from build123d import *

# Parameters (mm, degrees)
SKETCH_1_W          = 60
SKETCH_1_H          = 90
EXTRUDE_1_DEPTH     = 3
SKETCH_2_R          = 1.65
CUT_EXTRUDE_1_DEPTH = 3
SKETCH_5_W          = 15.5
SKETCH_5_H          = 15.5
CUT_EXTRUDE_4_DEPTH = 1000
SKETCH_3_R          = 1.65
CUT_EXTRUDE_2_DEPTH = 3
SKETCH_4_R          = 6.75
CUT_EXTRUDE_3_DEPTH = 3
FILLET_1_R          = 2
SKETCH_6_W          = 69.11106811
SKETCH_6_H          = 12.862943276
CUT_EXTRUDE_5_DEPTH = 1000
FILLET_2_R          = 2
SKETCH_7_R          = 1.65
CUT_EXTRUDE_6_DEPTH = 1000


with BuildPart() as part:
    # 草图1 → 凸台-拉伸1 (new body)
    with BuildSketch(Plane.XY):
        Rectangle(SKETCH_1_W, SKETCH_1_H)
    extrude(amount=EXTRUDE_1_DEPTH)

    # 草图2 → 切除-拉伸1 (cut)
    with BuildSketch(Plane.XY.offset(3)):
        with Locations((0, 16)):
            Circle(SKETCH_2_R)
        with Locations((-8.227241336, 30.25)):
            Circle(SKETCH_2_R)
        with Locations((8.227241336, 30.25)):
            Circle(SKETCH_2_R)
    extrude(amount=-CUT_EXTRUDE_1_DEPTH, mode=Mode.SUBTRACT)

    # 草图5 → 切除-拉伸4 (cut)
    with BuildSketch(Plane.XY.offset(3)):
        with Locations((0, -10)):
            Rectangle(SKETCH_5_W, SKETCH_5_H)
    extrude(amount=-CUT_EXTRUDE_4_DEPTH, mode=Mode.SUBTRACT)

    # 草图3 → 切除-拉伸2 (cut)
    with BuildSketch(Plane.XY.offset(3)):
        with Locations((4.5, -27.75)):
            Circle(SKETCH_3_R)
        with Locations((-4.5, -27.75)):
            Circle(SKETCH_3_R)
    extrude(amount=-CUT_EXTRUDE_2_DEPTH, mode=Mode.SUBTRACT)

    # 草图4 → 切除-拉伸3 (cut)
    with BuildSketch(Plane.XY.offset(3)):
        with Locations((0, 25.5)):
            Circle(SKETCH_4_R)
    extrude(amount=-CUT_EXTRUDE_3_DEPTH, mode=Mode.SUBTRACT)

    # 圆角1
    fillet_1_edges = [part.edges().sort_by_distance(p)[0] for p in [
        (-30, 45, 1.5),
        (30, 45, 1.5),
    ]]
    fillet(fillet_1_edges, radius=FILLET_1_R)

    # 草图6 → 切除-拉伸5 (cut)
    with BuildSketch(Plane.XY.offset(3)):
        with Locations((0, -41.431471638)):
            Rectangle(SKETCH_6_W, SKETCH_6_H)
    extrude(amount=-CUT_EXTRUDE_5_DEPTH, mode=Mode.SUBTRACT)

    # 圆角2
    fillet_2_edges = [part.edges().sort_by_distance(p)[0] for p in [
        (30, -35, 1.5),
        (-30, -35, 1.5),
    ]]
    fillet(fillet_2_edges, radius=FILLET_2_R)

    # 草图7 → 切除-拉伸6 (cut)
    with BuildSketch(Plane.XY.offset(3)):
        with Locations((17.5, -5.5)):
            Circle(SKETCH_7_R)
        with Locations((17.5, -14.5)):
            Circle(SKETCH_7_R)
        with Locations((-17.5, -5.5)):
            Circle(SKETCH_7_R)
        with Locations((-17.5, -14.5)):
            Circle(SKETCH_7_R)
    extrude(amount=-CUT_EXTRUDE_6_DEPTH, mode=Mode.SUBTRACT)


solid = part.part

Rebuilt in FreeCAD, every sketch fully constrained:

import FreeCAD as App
import Part
import Sketcher


def edges_at(feature, points):
    """Names of the edges that pass closest to the given points."""
    edges = feature.Shape.Edges
    near = lambda p: min(range(len(edges)), key=lambda i: edges[i].distToShape(Part.Vertex(*p))[0])
    return sorted({f"Edge{near(p) + 1}" for p in points})

doc = App.newDocument("Part")
params = doc.addObject("Spreadsheet::Sheet", "Params")
for row, (alias, value) in enumerate([
    ("sketch1_width", "60 mm"),
    ("sketch1_height", "90 mm"),
    ("pad1_length", "3 mm"),
    ("sketch2_diameter", "3.3 mm"),
    ("pocket1_length", "3 mm"),
    ("sketch3_width", "15.5 mm"),
    ("pocket2_length", "1000 mm"),
    ("sketch4_diameter", "3.3 mm"),
    ("pocket3_length", "3 mm"),
    ("sketch5_diameter", "13.5 mm"),
    ("pocket4_length", "3 mm"),
    ("fillet_radius", "2 mm"),
    ("pocket5_length", "1000 mm"),
    ("fillet2_radius", "2 mm"),
    ("sketch7_diameter", "3.3 mm"),
    ("pocket6_length", "1000 mm"),
], start=1):
    params.set(f"A{row}", alias)
    params.set(f"B{row}", "=" + value)
    params.setAlias(f"B{row}", alias)

body = doc.addObject("PartDesign::Body", "Body")

sketch1 = doc.addObject("Sketcher::SketchObject", "Sketch")
body.addObject(sketch1)
sketch1.AttachmentSupport = (doc.XY_Plane, [""])
sketch1.MapMode = "FlatFace"
sketch1.addGeometry(Part.LineSegment(App.Vector(-30, 45, 0), App.Vector(-30, -45, 0)), False)
sketch1.addGeometry(Part.LineSegment(App.Vector(-30, -45, 0), App.Vector(30, -45, 0)), False)
sketch1.addGeometry(Part.LineSegment(App.Vector(30, -45, 0), App.Vector(30, 45, 0)), False)
sketch1.addGeometry(Part.LineSegment(App.Vector(30, 45, 0), App.Vector(-30, 45, 0)), False)
sketch1.addConstraint(Sketcher.Constraint("Coincident", 0, 2, 1, 1))
sketch1.addConstraint(Sketcher.Constraint("Coincident", 1, 2, 2, 1))
sketch1.addConstraint(Sketcher.Constraint("Coincident", 2, 2, 3, 1))
sketch1.addConstraint(Sketcher.Constraint("Coincident", 3, 2, 0, 1))
sketch1.addConstraint(Sketcher.Constraint("Vertical", 0))
sketch1.addConstraint(Sketcher.Constraint("Horizontal", 1))
sketch1.addConstraint(Sketcher.Constraint("Vertical", 2))
sketch1.addConstraint(Sketcher.Constraint("Horizontal", 3))
sketch1.addConstraint(Sketcher.Constraint("Symmetric", 0, 2, 2, 2, -1, 1))
sketch1.addConstraint(Sketcher.Constraint("DistanceX", 1, 1, 1, 2, 60.0))
sketch1.addConstraint(Sketcher.Constraint("DistanceY", 0, 2, 0, 1, 90.0))
sketch1.setExpression("Constraints[9]", "Params.sketch1_width")
sketch1.setExpression("Constraints[10]", "Params.sketch1_height")
pad1 = doc.addObject("PartDesign::Pad", "Pad")
body.addObject(pad1)
pad1.Profile = sketch1
pad1.setExpression("Length", "Params.pad1_length")

sketch2 = doc.addObject("Sketcher::SketchObject", "Sketch001")
body.addObject(sketch2)
sketch2.AttachmentSupport = (doc.XY_Plane, [""])
sketch2.MapMode = "FlatFace"
sketch2.AttachmentOffset = App.Placement(App.Vector(0, 0, 3), App.Rotation())
sketch2.addGeometry(Part.Circle(App.Vector(0, 16, 0), App.Vector(0, 0, 1), 1.6), False)
sketch2.addGeometry(Part.Circle(App.Vector(-8.2, 30.2, 0), App.Vector(0, 0, 1), 1.6), False)
sketch2.addGeometry(Part.Circle(App.Vector(8.2, 30.2, 0), App.Vector(0, 0, 1), 1.6), False)
sketch2.addConstraint(Sketcher.Constraint("Equal", 0, 1))
sketch2.addConstraint(Sketcher.Constraint("Equal", 1, 2))
sketch2.addConstraint(Sketcher.Constraint("Symmetric", 1, 3, 2, 3, -2))
sketch2.addConstraint(Sketcher.Constraint("PointOnObject", 0, 3, -2))
sketch2.addConstraint(Sketcher.Constraint("Diameter", 0, 3.3))
sketch2.addConstraint(Sketcher.Constraint("DistanceY", -1, 1, 0, 3, 16.0))
sketch2.addConstraint(Sketcher.Constraint("DistanceY", -1, 1, 1, 3, 30.25))
sketch2.addConstraint(Sketcher.Constraint("DistanceX", 1, 3, -1, 1, 8.227241))
sketch2.setExpression("Constraints[4]", "Params.sketch2_diameter")
pocket1 = doc.addObject("PartDesign::Pocket", "Pocket")
body.addObject(pocket1)
pocket1.Profile = sketch2
pocket1.setExpression("Length", "Params.pocket1_length")

sketch3 = doc.addObject("Sketcher::SketchObject", "Sketch002")
body.addObject(sketch3)
sketch3.AttachmentSupport = (doc.XY_Plane, [""])
sketch3.MapMode = "FlatFace"
sketch3.AttachmentOffset = App.Placement(App.Vector(0, 0, 3), App.Rotation())
sketch3.addGeometry(Part.LineSegment(App.Vector(-8, -2, 0), App.Vector(-8, -18, 0)), False)
sketch3.addGeometry(Part.LineSegment(App.Vector(-8, -18, 0), App.Vector(8, -18, 0)), False)
sketch3.addGeometry(Part.LineSegment(App.Vector(8, -18, 0), App.Vector(8, -2, 0)), False)
sketch3.addGeometry(Part.LineSegment(App.Vector(8, -2, 0), App.Vector(-8, -2, 0)), False)
sketch3.addConstraint(Sketcher.Constraint("Coincident", 0, 2, 1, 1))
sketch3.addConstraint(Sketcher.Constraint("Coincident", 1, 2, 2, 1))
sketch3.addConstraint(Sketcher.Constraint("Coincident", 2, 2, 3, 1))
sketch3.addConstraint(Sketcher.Constraint("Coincident", 3, 2, 0, 1))
sketch3.addConstraint(Sketcher.Constraint("Vertical", 0))
sketch3.addConstraint(Sketcher.Constraint("Horizontal", 1))
sketch3.addConstraint(Sketcher.Constraint("Vertical", 2))
sketch3.addConstraint(Sketcher.Constraint("Horizontal", 3))
sketch3.addConstraint(Sketcher.Constraint("Equal", 3, 0))
sketch3.addConstraint(Sketcher.Constraint("DistanceX", 1, 1, 1, 2, 15.5))
sketch3.addConstraint(Sketcher.Constraint("DistanceX", 0, 2, -1, 1, 7.75))
sketch3.addConstraint(Sketcher.Constraint("DistanceY", 0, 2, -1, 1, 17.75))
sketch3.setExpression("Constraints[9]", "Params.sketch3_width")
pocket2 = doc.addObject("PartDesign::Pocket", "Pocket001")
body.addObject(pocket2)
pocket2.Profile = sketch3
pocket2.setExpression("Length", "Params.pocket2_length")

sketch4 = doc.addObject("Sketcher::SketchObject", "Sketch003")
body.addObject(sketch4)
sketch4.AttachmentSupport = (doc.XY_Plane, [""])
sketch4.MapMode = "FlatFace"
sketch4.AttachmentOffset = App.Placement(App.Vector(0, 0, 3), App.Rotation())
sketch4.addGeometry(Part.Circle(App.Vector(4.5, -27.8, 0), App.Vector(0, 0, 1), 1.6), False)
sketch4.addGeometry(Part.Circle(App.Vector(-4.5, -27.8, 0), App.Vector(0, 0, 1), 1.6), False)
sketch4.addConstraint(Sketcher.Constraint("Equal", 0, 1))
sketch4.addConstraint(Sketcher.Constraint("Symmetric", 0, 3, 1, 3, -2))
sketch4.addConstraint(Sketcher.Constraint("Diameter", 0, 3.3))
sketch4.addConstraint(Sketcher.Constraint("DistanceX", 1, 3, 0, 3, 9.0))
sketch4.addConstraint(Sketcher.Constraint("DistanceY", 0, 3, -1, 1, 27.75))
sketch4.setExpression("Constraints[2]", "Params.sketch4_diameter")
pocket3 = doc.addObject("PartDesign::Pocket", "Pocket002")
body.addObject(pocket3)
pocket3.Profile = sketch4
pocket3.setExpression("Length", "Params.pocket3_length")

sketch5 = doc.addObject("Sketcher::SketchObject", "Sketch004")
body.addObject(sketch5)
sketch5.AttachmentSupport = (doc.XY_Plane, [""])
sketch5.MapMode = "FlatFace"
sketch5.AttachmentOffset = App.Placement(App.Vector(0, 0, 3), App.Rotation())
sketch5.addGeometry(Part.Circle(App.Vector(0, 26, 0), App.Vector(0, 0, 1), 7), False)
sketch5.addConstraint(Sketcher.Constraint("PointOnObject", 0, 3, -2))
sketch5.addConstraint(Sketcher.Constraint("Diameter", 0, 13.5))
sketch5.addConstraint(Sketcher.Constraint("DistanceY", -1, 1, 0, 3, 25.5))
sketch5.setExpression("Constraints[1]", "Params.sketch5_diameter")
pocket4 = doc.addObject("PartDesign::Pocket", "Pocket003")
body.addObject(pocket4)
pocket4.Profile = sketch5
pocket4.setExpression("Length", "Params.pocket4_length")
doc.recompute()

fillet = doc.addObject("PartDesign::Fillet", "Fillet")
body.addObject(fillet)
fillet.Base = (pocket4, edges_at(pocket4, [(-30, 45, 1.5), (30, 45, 1.5)]))
fillet.setExpression("Radius", "Params.fillet_radius")

sketch6 = doc.addObject("Sketcher::SketchObject", "Sketch005")
body.addObject(sketch6)
sketch6.AttachmentSupport = (doc.XY_Plane, [""])
sketch6.MapMode = "FlatFace"
sketch6.AttachmentOffset = App.Placement(App.Vector(0, 0, 3), App.Rotation())
sketch6.addGeometry(Part.LineSegment(App.Vector(-35, -35, 0), App.Vector(-35, -48, 0)), False)
sketch6.addGeometry(Part.LineSegment(App.Vector(-35, -48, 0), App.Vector(35, -48, 0)), False)
sketch6.addGeometry(Part.LineSegment(App.Vector(35, -48, 0), App.Vector(35, -35, 0)), False)
sketch6.addGeometry(Part.LineSegment(App.Vector(35, -35, 0), App.Vector(-35, -35, 0)), False)
sketch6.addConstraint(Sketcher.Constraint("Coincident", 0, 2, 1, 1))
sketch6.addConstraint(Sketcher.Constraint("Coincident", 1, 2, 2, 1))
sketch6.addConstraint(Sketcher.Constraint("Coincident", 2, 2, 3, 1))
sketch6.addConstraint(Sketcher.Constraint("Coincident", 3, 2, 0, 1))
sketch6.addConstraint(Sketcher.Constraint("Vertical", 0))
sketch6.addConstraint(Sketcher.Constraint("Horizontal", 1))
sketch6.addConstraint(Sketcher.Constraint("Vertical", 2))
sketch6.addConstraint(Sketcher.Constraint("Horizontal", 3))
sketch6.addConstraint(Sketcher.Constraint("DistanceY", 2, 2, -1, 1, 35.0))
sketch6.addConstraint(Sketcher.Constraint("DistanceX", 1, 1, 1, 2, 69.111068))
sketch6.addConstraint(Sketcher.Constraint("DistanceY", 0, 2, 0, 1, 12.862943))
sketch6.addConstraint(Sketcher.Constraint("DistanceX", 0, 2, -1, 1, 34.555534))
pocket5 = doc.addObject("PartDesign::Pocket", "Pocket004")
body.addObject(pocket5)
pocket5.Profile = sketch6
pocket5.setExpression("Length", "Params.pocket5_length")
doc.recompute()

fillet2 = doc.addObject("PartDesign::Fillet", "Fillet001")
body.addObject(fillet2)
fillet2.Base = (pocket5, edges_at(pocket5, [(30, -35, 1.5), (-30, -35, 1.5)]))
fillet2.setExpression("Radius", "Params.fillet2_radius")

sketch7 = doc.addObject("Sketcher::SketchObject", "Sketch006")
body.addObject(sketch7)
sketch7.AttachmentSupport = (doc.XY_Plane, [""])
sketch7.MapMode = "FlatFace"
sketch7.AttachmentOffset = App.Placement(App.Vector(0, 0, 3), App.Rotation())
sketch7.addGeometry(Part.Circle(App.Vector(17.5, -5.5, 0), App.Vector(0, 0, 1), 1.6), False)
sketch7.addGeometry(Part.Circle(App.Vector(17.5, -14.5, 0), App.Vector(0, 0, 1), 1.6), False)
sketch7.addGeometry(Part.Circle(App.Vector(-17.5, -5.5, 0), App.Vector(0, 0, 1), 1.6), False)
sketch7.addGeometry(Part.Circle(App.Vector(-17.5, -14.5, 0), App.Vector(0, 0, 1), 1.6), False)
sketch7.addConstraint(Sketcher.Constraint("Equal", 0, 1))
sketch7.addConstraint(Sketcher.Constraint("Equal", 1, 2))
sketch7.addConstraint(Sketcher.Constraint("Equal", 2, 3))
sketch7.addConstraint(Sketcher.Constraint("Symmetric", 0, 3, 2, 3, -2))
sketch7.addConstraint(Sketcher.Constraint("Symmetric", 1, 3, 3, 3, -2))
sketch7.addConstraint(Sketcher.Constraint("Vertical", 0, 3, 1, 3))
sketch7.addConstraint(Sketcher.Constraint("Diameter", 0, 3.3))
sketch7.addConstraint(Sketcher.Constraint("DistanceY", 1, 3, 0, 3, 9.0))
sketch7.addConstraint(Sketcher.Constraint("DistanceX", 2, 3, 0, 3, 35.0))
sketch7.addConstraint(Sketcher.Constraint("DistanceY", 0, 3, -1, 1, 5.5))
sketch7.setExpression("Constraints[6]", "Params.sketch7_diameter")
pocket6 = doc.addObject("PartDesign::Pocket", "Pocket005")
body.addObject(pocket6)
pocket6.Profile = sketch7
pocket6.setExpression("Length", "Params.pocket6_length")

doc.recompute()
